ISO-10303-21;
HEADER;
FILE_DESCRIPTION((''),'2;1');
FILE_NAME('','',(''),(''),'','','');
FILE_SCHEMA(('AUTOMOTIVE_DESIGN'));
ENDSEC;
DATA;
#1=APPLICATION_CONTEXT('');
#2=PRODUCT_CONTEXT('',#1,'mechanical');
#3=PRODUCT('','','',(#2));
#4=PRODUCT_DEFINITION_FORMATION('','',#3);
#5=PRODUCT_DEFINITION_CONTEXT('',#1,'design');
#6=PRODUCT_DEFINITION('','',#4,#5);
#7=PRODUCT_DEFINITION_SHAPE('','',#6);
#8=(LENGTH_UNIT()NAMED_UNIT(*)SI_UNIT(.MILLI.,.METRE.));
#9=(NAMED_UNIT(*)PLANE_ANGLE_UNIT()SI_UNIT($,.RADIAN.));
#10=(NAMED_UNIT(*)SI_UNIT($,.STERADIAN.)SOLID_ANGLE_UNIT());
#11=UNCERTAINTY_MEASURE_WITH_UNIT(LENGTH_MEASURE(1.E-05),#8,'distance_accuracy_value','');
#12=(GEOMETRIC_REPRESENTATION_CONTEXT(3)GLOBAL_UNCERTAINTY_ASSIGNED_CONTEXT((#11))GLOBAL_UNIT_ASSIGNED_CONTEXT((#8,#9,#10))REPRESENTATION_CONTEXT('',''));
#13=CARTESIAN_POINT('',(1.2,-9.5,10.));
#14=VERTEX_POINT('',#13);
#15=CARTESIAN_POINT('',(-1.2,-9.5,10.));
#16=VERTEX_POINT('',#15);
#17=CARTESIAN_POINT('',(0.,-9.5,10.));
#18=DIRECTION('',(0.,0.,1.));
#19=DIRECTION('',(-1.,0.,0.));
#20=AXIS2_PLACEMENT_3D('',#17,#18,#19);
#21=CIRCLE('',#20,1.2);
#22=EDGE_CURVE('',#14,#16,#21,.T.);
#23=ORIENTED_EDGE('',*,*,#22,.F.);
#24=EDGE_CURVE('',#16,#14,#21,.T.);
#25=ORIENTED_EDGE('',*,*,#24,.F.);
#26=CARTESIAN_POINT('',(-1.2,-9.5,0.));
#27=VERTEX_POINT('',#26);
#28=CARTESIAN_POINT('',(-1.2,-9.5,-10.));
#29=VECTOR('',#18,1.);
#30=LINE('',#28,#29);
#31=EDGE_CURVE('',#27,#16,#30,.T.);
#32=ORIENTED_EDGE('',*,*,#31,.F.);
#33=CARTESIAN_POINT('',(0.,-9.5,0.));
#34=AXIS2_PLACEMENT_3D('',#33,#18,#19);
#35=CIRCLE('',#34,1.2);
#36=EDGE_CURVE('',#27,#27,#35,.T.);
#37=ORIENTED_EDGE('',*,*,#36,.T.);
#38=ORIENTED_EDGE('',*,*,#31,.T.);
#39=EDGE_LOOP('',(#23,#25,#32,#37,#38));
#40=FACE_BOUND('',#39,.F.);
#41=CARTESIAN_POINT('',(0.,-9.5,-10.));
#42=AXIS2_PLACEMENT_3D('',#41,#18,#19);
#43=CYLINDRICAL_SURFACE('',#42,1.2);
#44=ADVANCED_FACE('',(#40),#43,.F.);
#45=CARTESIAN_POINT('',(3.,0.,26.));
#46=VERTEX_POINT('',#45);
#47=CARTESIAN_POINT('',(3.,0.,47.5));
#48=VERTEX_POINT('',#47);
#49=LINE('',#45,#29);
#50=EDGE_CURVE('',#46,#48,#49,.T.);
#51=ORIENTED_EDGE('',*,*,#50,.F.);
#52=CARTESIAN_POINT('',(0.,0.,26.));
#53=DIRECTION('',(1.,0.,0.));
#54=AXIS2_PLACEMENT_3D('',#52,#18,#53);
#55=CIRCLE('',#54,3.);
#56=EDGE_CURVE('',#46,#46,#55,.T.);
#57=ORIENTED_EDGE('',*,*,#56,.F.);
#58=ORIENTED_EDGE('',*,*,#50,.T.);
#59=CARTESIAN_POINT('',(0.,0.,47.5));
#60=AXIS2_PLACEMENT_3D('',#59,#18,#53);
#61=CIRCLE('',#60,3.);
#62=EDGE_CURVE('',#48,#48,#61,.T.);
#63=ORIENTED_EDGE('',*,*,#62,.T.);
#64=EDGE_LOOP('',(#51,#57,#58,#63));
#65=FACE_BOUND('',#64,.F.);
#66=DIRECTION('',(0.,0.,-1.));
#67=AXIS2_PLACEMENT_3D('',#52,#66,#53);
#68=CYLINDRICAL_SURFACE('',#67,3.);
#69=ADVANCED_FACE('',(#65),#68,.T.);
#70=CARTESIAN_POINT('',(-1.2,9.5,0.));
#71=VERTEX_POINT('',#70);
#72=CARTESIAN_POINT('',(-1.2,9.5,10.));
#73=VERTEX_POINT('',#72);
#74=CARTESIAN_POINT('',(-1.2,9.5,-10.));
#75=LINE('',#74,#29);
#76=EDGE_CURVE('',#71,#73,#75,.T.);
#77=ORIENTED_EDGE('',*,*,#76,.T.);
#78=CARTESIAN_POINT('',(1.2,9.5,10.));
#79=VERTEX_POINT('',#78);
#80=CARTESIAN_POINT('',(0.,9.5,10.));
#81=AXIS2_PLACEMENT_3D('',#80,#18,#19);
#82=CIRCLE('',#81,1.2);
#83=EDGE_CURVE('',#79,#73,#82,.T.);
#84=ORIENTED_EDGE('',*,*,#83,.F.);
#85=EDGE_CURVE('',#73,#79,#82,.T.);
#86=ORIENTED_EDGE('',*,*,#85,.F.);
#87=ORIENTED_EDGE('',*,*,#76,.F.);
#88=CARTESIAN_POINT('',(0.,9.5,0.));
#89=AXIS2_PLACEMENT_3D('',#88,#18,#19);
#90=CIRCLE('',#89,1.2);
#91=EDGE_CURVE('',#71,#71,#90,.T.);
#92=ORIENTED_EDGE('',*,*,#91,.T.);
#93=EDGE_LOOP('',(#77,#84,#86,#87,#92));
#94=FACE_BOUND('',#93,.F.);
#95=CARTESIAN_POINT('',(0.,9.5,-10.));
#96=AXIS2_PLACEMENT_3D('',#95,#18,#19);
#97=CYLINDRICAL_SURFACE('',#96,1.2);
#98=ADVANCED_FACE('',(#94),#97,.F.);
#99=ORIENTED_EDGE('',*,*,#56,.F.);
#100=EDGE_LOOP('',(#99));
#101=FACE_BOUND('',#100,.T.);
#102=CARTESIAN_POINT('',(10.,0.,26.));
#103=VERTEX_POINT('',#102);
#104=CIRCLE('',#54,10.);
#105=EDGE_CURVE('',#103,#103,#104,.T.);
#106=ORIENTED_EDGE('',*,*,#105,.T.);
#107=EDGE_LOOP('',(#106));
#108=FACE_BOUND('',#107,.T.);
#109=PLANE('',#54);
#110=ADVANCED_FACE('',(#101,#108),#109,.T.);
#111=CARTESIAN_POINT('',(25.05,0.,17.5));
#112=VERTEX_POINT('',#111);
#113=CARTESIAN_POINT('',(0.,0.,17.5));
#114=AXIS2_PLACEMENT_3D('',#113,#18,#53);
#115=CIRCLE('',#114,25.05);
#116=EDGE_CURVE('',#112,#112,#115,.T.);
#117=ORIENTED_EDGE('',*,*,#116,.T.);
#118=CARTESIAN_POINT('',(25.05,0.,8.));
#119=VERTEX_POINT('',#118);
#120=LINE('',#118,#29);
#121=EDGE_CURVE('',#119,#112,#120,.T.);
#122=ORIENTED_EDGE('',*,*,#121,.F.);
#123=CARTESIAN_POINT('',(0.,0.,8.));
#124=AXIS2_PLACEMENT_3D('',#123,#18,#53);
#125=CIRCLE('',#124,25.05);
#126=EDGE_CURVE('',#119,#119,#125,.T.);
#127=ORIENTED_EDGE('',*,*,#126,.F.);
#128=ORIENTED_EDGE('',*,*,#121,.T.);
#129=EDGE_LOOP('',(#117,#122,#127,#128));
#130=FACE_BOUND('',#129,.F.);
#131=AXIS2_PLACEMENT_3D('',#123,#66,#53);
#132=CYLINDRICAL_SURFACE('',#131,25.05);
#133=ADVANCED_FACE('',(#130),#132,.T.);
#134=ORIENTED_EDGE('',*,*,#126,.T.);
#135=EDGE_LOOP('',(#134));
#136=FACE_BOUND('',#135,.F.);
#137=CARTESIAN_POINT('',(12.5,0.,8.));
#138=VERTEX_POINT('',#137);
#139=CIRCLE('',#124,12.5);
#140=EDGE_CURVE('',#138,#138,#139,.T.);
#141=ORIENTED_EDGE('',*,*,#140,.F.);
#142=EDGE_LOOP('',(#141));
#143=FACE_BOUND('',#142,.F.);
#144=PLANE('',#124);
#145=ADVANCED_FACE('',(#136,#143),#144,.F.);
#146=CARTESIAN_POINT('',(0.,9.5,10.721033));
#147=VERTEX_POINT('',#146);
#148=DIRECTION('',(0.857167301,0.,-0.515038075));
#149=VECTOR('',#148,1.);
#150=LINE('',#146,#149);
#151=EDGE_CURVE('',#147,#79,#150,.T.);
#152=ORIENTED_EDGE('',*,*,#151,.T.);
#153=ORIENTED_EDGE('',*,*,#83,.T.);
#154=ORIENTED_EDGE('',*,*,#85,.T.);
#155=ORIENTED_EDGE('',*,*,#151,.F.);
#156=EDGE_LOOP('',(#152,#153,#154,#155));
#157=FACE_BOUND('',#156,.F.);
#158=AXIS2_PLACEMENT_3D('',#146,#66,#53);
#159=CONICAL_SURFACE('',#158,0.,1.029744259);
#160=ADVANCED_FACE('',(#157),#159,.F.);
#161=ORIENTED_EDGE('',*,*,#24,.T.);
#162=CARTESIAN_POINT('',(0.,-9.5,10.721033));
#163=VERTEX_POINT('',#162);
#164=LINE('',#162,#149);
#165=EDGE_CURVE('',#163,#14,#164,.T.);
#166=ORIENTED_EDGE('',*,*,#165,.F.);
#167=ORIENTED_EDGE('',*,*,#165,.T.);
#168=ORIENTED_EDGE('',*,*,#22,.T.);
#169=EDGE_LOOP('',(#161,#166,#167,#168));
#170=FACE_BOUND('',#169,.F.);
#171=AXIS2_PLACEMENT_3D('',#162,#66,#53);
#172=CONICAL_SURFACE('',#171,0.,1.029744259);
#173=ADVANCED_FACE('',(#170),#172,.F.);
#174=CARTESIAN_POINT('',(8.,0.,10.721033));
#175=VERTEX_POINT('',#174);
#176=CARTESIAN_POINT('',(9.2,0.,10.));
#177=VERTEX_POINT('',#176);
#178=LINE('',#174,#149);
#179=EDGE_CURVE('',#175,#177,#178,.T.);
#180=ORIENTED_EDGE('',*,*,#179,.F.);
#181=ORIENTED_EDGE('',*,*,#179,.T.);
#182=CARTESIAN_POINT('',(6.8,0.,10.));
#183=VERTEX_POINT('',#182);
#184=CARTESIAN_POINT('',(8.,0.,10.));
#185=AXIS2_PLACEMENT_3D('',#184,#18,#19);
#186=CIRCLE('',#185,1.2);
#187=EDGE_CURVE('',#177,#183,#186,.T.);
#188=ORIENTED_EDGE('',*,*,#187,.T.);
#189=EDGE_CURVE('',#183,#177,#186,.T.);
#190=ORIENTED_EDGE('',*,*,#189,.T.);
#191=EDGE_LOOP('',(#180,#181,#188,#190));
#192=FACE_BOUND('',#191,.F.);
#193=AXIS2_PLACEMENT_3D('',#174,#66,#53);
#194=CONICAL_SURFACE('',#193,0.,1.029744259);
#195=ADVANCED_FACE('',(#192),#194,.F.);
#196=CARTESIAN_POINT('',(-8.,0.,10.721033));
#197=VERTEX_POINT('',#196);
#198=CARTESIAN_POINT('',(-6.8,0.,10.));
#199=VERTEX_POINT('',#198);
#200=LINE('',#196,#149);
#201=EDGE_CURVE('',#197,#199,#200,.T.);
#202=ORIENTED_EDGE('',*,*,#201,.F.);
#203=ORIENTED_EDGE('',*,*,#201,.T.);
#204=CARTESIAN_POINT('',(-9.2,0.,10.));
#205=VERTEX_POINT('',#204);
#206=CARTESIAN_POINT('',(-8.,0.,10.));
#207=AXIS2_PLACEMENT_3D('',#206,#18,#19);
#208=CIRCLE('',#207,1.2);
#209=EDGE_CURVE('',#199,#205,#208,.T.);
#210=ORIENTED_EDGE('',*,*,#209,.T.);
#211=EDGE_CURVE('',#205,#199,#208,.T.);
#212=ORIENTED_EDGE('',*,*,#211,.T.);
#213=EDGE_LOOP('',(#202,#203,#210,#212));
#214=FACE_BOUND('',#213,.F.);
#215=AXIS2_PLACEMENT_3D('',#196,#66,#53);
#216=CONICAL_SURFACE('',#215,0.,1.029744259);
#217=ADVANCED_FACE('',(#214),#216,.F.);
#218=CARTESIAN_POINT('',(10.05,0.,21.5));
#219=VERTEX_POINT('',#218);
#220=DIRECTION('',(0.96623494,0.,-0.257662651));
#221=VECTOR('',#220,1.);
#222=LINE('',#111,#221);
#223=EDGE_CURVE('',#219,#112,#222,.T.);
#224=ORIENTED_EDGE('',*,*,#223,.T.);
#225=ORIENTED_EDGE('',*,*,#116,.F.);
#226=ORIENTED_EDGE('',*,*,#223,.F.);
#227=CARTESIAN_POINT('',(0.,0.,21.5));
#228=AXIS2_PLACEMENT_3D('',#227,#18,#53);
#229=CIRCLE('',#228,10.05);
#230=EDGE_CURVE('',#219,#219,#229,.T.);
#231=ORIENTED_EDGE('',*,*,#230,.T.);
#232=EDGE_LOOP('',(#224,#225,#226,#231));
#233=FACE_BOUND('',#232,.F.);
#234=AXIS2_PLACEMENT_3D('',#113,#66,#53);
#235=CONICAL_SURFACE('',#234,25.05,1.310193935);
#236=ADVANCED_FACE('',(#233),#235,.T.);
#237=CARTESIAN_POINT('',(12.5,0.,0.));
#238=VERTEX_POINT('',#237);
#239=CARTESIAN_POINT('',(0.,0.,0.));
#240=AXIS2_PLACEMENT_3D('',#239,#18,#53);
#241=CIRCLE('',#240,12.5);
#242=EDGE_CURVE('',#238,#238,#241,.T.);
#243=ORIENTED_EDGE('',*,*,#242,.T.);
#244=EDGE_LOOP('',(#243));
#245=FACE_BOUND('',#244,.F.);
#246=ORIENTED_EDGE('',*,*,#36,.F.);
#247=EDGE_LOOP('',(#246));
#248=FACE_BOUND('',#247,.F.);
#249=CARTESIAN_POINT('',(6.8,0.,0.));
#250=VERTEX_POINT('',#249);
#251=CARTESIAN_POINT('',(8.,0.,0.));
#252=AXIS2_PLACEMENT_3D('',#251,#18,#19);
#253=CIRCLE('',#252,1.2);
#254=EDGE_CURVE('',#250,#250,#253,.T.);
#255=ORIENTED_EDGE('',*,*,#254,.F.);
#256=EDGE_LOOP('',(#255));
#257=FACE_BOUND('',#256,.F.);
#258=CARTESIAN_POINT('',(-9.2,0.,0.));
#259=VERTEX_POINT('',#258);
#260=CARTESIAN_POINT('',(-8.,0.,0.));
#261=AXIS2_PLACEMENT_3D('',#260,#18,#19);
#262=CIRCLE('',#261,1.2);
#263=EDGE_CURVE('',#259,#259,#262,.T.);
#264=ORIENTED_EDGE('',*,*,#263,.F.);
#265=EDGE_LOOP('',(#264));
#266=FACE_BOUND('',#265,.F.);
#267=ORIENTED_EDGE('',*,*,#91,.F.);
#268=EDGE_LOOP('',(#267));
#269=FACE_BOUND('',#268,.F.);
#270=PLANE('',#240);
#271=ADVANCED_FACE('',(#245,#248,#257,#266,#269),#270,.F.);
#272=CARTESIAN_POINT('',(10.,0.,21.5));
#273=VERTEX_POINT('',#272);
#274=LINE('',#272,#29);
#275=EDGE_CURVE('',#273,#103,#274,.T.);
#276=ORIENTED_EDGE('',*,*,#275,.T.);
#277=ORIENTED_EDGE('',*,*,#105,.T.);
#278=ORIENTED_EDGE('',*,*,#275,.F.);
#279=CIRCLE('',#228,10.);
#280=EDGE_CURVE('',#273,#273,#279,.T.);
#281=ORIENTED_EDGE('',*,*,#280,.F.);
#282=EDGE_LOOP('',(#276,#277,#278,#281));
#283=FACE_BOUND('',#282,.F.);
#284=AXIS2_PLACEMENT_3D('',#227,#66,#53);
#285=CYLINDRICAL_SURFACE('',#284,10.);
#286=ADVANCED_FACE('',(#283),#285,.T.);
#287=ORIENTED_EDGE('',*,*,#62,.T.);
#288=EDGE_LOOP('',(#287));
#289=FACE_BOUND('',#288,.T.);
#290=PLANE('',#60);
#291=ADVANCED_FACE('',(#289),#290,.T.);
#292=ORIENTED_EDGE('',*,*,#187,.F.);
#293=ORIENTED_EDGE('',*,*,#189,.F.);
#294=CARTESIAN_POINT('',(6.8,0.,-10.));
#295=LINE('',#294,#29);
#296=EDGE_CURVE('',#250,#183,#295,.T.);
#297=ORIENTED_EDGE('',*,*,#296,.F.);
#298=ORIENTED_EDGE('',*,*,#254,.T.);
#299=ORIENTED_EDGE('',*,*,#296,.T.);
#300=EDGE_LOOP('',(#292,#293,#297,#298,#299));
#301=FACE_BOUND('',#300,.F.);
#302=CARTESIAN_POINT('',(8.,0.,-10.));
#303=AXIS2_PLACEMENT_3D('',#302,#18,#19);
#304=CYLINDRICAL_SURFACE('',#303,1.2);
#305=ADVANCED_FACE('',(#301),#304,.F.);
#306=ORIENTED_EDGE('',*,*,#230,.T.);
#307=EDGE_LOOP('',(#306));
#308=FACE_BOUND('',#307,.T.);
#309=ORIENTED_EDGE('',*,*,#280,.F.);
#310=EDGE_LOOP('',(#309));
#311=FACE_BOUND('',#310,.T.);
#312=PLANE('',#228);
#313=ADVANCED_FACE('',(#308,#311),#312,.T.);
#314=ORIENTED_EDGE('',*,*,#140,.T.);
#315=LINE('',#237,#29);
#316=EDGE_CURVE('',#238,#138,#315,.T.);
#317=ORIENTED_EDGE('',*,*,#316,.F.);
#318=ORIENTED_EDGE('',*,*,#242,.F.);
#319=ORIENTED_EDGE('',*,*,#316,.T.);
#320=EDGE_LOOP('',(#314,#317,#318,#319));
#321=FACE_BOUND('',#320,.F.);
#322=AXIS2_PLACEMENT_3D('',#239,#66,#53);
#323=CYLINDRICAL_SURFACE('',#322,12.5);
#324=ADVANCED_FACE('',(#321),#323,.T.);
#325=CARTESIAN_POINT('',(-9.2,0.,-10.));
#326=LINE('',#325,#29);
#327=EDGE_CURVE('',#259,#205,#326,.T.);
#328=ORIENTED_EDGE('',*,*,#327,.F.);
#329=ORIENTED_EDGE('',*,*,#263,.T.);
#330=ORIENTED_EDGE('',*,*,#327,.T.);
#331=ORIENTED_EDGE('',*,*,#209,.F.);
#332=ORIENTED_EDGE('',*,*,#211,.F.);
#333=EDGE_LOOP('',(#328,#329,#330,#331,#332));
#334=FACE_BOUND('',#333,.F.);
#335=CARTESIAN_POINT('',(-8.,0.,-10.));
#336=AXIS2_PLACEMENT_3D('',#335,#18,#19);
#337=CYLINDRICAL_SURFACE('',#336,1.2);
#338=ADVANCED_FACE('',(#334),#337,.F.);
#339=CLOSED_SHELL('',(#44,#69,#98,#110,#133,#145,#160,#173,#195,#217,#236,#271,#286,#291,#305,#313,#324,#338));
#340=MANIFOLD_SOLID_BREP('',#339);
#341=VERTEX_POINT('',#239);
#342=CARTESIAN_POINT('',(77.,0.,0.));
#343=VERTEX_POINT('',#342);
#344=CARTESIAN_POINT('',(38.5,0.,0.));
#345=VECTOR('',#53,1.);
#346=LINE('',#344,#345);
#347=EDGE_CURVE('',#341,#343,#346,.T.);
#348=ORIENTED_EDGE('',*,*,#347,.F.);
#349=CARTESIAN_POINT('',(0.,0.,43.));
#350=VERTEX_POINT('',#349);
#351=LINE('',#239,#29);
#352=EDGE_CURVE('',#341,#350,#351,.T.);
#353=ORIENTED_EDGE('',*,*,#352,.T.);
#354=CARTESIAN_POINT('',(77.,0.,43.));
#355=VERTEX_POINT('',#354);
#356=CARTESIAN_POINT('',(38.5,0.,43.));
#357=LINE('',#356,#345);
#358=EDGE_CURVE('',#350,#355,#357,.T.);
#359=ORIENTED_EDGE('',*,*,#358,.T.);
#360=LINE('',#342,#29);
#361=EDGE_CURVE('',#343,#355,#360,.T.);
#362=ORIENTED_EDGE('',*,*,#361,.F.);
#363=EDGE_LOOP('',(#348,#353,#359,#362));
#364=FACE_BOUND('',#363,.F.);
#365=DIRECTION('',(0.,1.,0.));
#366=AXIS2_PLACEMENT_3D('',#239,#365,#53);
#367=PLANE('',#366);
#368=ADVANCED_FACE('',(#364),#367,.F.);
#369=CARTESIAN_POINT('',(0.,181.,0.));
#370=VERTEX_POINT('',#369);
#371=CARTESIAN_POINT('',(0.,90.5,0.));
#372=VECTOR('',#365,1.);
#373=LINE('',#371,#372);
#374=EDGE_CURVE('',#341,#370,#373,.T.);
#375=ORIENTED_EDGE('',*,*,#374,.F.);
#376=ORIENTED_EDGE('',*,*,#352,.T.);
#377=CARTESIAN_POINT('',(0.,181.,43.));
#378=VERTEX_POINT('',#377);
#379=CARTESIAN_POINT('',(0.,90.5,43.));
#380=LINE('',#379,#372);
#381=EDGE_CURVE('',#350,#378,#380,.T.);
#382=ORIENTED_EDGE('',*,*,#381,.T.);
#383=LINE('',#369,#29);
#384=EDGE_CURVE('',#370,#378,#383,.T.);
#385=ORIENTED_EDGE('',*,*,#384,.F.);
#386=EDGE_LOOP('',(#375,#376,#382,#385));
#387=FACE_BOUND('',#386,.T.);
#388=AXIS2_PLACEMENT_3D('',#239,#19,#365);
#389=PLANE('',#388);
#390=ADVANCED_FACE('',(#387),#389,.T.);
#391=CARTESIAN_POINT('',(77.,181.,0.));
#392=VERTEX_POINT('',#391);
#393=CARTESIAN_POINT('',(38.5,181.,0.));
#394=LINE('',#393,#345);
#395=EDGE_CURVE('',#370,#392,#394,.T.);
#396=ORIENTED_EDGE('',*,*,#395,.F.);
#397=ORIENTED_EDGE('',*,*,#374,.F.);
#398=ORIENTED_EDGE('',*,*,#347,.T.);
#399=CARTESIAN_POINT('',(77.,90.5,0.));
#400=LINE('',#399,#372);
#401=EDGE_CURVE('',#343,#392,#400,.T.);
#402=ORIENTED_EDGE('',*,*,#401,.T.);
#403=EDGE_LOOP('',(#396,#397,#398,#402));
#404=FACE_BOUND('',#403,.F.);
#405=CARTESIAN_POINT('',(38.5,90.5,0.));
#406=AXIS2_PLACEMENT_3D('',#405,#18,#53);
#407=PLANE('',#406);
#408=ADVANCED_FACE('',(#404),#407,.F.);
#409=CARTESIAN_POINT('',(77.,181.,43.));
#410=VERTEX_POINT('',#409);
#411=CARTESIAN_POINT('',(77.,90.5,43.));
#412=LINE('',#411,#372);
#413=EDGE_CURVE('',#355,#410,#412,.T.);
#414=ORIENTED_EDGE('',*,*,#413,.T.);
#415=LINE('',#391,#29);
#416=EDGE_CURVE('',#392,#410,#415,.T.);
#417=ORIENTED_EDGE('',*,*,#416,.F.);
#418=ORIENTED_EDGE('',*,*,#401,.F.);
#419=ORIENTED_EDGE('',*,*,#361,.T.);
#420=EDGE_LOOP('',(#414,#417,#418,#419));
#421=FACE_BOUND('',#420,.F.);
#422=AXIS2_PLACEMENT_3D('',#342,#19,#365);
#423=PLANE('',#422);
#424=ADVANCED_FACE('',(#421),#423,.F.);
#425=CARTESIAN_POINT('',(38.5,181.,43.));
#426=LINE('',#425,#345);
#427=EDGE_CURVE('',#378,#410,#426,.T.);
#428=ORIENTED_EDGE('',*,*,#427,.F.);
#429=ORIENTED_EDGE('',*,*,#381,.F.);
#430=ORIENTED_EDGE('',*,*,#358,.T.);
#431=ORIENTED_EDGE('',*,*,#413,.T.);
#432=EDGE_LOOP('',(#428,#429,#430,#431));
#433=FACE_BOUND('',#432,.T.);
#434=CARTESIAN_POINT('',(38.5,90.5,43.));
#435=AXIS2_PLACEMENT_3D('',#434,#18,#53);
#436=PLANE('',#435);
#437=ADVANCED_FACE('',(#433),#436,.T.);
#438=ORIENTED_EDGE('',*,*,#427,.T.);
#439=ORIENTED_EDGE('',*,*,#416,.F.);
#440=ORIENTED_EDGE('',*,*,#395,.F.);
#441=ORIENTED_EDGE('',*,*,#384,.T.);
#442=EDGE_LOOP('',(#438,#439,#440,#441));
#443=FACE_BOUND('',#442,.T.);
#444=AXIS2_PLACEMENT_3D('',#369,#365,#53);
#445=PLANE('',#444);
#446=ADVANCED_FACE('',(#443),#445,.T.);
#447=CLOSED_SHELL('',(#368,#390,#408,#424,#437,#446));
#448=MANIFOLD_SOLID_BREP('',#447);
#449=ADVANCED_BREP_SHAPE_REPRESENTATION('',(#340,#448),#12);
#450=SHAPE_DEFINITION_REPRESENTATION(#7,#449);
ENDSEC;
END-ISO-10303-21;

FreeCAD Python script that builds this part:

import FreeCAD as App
import Part
import Sketcher
Q = App.Units.Quantity


def edges_at(feature, points):
    """Names of the edges that pass closest to the given points."""
    edges = feature.Shape.Edges
    near = lambda p: min(range(len(edges)), key=lambda i: edges[i].distToShape(Part.Vertex(*p))[0])
    return sorted({f"Edge{near(p) + 1}" for p in points})

doc = App.newDocument("Part")
body = doc.addObject("PartDesign::Body", "Body")

sketch1 = doc.addObject("Sketcher::SketchObject", "Sketch")
body.addObject(sketch1)
sketch1.AttachmentSupport = (doc.XY_Plane, [""])
sketch1.MapMode = "FlatFace"
sketch1.addGeometry(Part.Circle(App.Vector(0, 0, 0), App.Vector(0, 0, 1), 12), False)
sketch1.addConstraint([
    Sketcher.Constraint("Coincident", 0, 3, -1, 1),
    Sketcher.Constraint("Diameter", 0, Q("25 mm")),
])
pad1 = doc.addObject("PartDesign::Pad", "Pad")
body.addObject(pad1)
pad1.Profile = sketch1
pad1.Length = 8

sketch2 = doc.addObject("Sketcher::SketchObject", "Sketch001")
body.addObject(sketch2)
sketch2.AttachmentSupport = (doc.XY_Plane, [""])
sketch2.MapMode = "FlatFace"
sketch2.AttachmentOffset = App.Placement(App.Vector(0, 0, 8), App.Rotation())
sketch2.addGeometry(Part.Circle(App.Vector(0, 0, 0), App.Vector(0, 0, 1), 25), False)
sketch2.addConstraint([
    Sketcher.Constraint("Coincident", 0, 3, -1, 1),
    Sketcher.Constraint("Diameter", 0, Q("50.1 mm")),
])
pad2 = doc.addObject("PartDesign::Pad", "Pad001")
body.addObject(pad2)
pad2.Profile = sketch2
pad2.Length = 13.5
doc.recompute()

chamfer = doc.addObject("PartDesign::Chamfer", "Chamfer")
body.addObject(chamfer)
chamfer.Base = (pad2, edges_at(pad2, [(-25.05, 0, 21.5)]))
chamfer.ChamferType = "Two distances"
chamfer.Size = 15
chamfer.Size2 = 4
chamfer.FlipDirection = True

sketch3 = doc.addObject("Sketcher::SketchObject", "Sketch002")
body.addObject(sketch3)
sketch3.AttachmentSupport = (doc.XY_Plane, [""])
sketch3.MapMode = "FlatFace"
sketch3.addGeometry([
    Part.Circle(App.Vector(0, -9.5, 0), App.Vector(0, 0, 1), 1.2),
    Part.Circle(App.Vector(0, 9.5, 0), App.Vector(0, 0, 1), 1.2),
    Part.Circle(App.Vector(8, 0, 0), App.Vector(0, 0, 1), 1.2),
    Part.Circle(App.Vector(-8, 0, 0), App.Vector(0, 0, 1), 1.2),
], False)
sketch3.addConstraint([
    Sketcher.Constraint("Equal", 0, 1),
    Sketcher.Constraint("Equal", 1, 2),
    Sketcher.Constraint("Equal", 2, 3),
    Sketcher.Constraint("Symmetric", 0, 3, 1, 3, -1, 1),
    Sketcher.Constraint("Symmetric", 2, 3, 3, 3, -1, 1),
    Sketcher.Constraint("PointOnObject", 0, 3, -2),
    Sketcher.Constraint("PointOnObject", 2, 3, -1),
    Sketcher.Constraint("Diameter", 0, Q("2.4 mm")),
    Sketcher.Constraint("DistanceX", -1, 1, 2, 3, Q("8 mm")),
    Sketcher.Constraint("DistanceY", 0, 3, 1, 3, Q("19 mm")),
])
doc.recompute()
hole = doc.addObject("PartDesign::Hole", "Hole")
body.addObject(hole)
hole.Profile = sketch3
hole.ThreadType = "None"
hole.Diameter = 2.4
hole.DepthType = "Dimension"
hole.Depth = 10
hole.DrillPoint = "Angled"
hole.DrillPointAngle = 118
hole.Reversed = True

sketch4 = doc.addObject("Sketcher::SketchObject", "Sketch003")
body.addObject(sketch4)
sketch4.AttachmentSupport = (doc.XY_Plane, [""])
sketch4.MapMode = "FlatFace"
sketch4.AttachmentOffset = App.Placement(App.Vector(0, 0, 21.5), App.Rotation())
sketch4.addGeometry(Part.Circle(App.Vector(0, 0, 0), App.Vector(0, 0, 1), 10), False)
sketch4.addConstraint([
    Sketcher.Constraint("Coincident", 0, 3, -1, 1),
    Sketcher.Constraint("Diameter", 0, Q("20 mm")),
])
pad3 = doc.addObject("PartDesign::Pad", "Pad002")
body.addObject(pad3)
pad3.Profile = sketch4
pad3.Length = 4.5

sketch5 = doc.addObject("Sketcher::SketchObject", "Sketch004")
body.addObject(sketch5)
sketch5.AttachmentSupport = (doc.XY_Plane, [""])
sketch5.MapMode = "FlatFace"
sketch5.AttachmentOffset = App.Placement(App.Vector(0, 0, 26), App.Rotation())
sketch5.addGeometry(Part.Circle(App.Vector(0, 0, 0), App.Vector(0, 0, 1), 3), False)
sketch5.addConstraint([
    Sketcher.Constraint("Coincident", 0, 3, -1, 1),
    Sketcher.Constraint("Diameter", 0, Q("6 mm")),
])
pad4 = doc.addObject("PartDesign::Pad", "Pad003")
body.addObject(pad4)
pad4.Profile = sketch5
pad4.Length = 21.5
body2 = doc.addObject("PartDesign::Body", "Body001")

sketch6 = doc.addObject("Sketcher::SketchObject", "Sketch005")
body2.addObject(sketch6)
sketch6.AttachmentSupport = (doc.getObject("XY_Plane001"), [""])
sketch6.MapMode = "FlatFace"
sketch6.addGeometry([
    Part.LineSegment(App.Vector(0, 181, 0), App.Vector(0, 0, 0)),
    Part.LineSegment(App.Vector(0, 0, 0), App.Vector(77, 0, 0)),
    Part.LineSegment(App.Vector(77, 0, 0), App.Vector(77, 181, 0)),
    Part.LineSegment(App.Vector(77, 181, 0), App.Vector(0, 181, 0)),
], False)
sketch6.addConstraint([
    Sketcher.Constraint("Coincident", 0, 2, 1, 1),
    Sketcher.Constraint("Coincident", 1, 2, 2, 1),
    Sketcher.Constraint("Coincident", 2, 2, 3, 1),
    Sketcher.Constraint("Coincident", 3, 2, 0, 1),
    Sketcher.Constraint("Vertical", 0),
    Sketcher.Constraint("Horizontal", 1),
    Sketcher.Constraint("Vertical", 2),
    Sketcher.Constraint("Horizontal", 3),
    Sketcher.Constraint("Coincident", 0, 2, -1, 1),
    Sketcher.Constraint("DistanceX", 1, 1, 1, 2, Q("77 mm")),
    Sketcher.Constraint("DistanceY", 0, 2, 0, 1, Q("181 mm")),
])
pad5 = doc.addObject("PartDesign::Pad", "Pad004")
body2.addObject(pad5)
pad5.Profile = sketch6
pad5.Length = 43

doc.recompute()
